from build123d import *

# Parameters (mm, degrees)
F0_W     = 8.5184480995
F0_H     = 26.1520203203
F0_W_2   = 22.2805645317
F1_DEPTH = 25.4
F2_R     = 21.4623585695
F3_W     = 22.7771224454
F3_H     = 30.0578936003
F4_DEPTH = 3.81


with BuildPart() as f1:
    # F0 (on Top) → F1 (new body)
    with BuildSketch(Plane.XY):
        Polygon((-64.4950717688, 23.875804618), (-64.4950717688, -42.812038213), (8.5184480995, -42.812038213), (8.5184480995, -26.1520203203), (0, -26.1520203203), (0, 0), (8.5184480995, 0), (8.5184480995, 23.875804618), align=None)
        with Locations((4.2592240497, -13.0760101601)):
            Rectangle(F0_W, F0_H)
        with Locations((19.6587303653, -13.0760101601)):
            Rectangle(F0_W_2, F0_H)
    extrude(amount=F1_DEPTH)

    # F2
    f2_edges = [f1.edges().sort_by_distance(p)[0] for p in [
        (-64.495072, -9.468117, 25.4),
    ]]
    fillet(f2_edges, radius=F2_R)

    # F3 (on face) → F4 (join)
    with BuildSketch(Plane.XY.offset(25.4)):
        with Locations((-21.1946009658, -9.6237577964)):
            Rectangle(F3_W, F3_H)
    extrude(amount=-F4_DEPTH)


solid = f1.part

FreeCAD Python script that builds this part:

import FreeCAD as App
import Part
import Sketcher
from FreeCAD import Vector
Q = App.Units.Quantity


def edges_at(feature, points):
    """Names of the edges that pass closest to the given points."""
    edges = feature.Shape.Edges
    near = lambda p: min(range(len(edges)), key=lambda i: edges[i].distToShape(Part.Vertex(*p))[0])
    return sorted({f"Edge{near(p) + 1}" for p in points})

doc = App.newDocument("Part")
params = doc.addObject("Spreadsheet::Sheet", "Params")
for row, (alias, value) in enumerate([
    ("pad1_length", "1 in"),
    ("fillet_radius", "21.462359 mm"),
    ("pad2_length", "0.15 in"),
], start=1):
    params.set(f"A{row}", alias)
    params.set(f"B{row}", "=" + value)
    params.setAlias(f"B{row}", alias)

body = doc.addObject("PartDesign::Body", "Body")

sketch1 = body.newObject("Sketcher::SketchObject", "Sketch")
sketch1.AttachmentSupport = (doc.getObject("XY_Plane"), [""])
sketch1.MapMode = "FlatFace"
sketch1.addGeometry(Part.LineSegment(Vector(-64, 24, 0), Vector(-64, -43, 0)), False)
sketch1.addGeometry(Part.LineSegment(Vector(-64, -43, 0), Vector(9, -43, 0)), False)
sketch1.addGeometry(Part.LineSegment(Vector(9, -43, 0), Vector(9, -26, 0)), False)
sketch1.addGeometry(Part.LineSegment(Vector(9, -26, 0), Vector(31, -26, 0)), False)
sketch1.addGeometry(Part.LineSegment(Vector(31, -26, 0), Vector(31, 0, 0)), False)
sketch1.addGeometry(Part.LineSegment(Vector(31, 0, 0), Vector(9, 0, 0)), False)
sketch1.addGeometry(Part.LineSegment(Vector(9, 0, 0), Vector(9, 24, 0)), False)
sketch1.addGeometry(Part.LineSegment(Vector(9, 24, 0), Vector(-64, 24, 0)), False)
sketch1.addConstraint(Sketcher.Constraint("Coincident", 0, 2, 1, 1))
sketch1.addConstraint(Sketcher.Constraint("Coincident", 1, 2, 2, 1))
sketch1.addConstraint(Sketcher.Constraint("Coincident", 2, 2, 3, 1))
sketch1.addConstraint(Sketcher.Constraint("Coincident", 3, 2, 4, 1))
sketch1.addConstraint(Sketcher.Constraint("Coincident", 4, 2, 5, 1))
sketch1.addConstraint(Sketcher.Constraint("Coincident", 5, 2, 6, 1))
sketch1.addConstraint(Sketcher.Constraint("Coincident", 6, 2, 7, 1))
sketch1.addConstraint(Sketcher.Constraint("Coincident", 7, 2, 0, 1))
sketch1.addConstraint(Sketcher.Constraint("Vertical", 0))
sketch1.addConstraint(Sketcher.Constraint("Horizontal", 1))
sketch1.addConstraint(Sketcher.Constraint("Vertical", 2))
sketch1.addConstraint(Sketcher.Constraint("Horizontal", 3))
sketch1.addConstraint(Sketcher.Constraint("Vertical", 4))
sketch1.addConstraint(Sketcher.Constraint("Horizontal", 5))
sketch1.addConstraint(Sketcher.Constraint("Vertical", 6))
sketch1.addConstraint(Sketcher.Constraint("Horizontal", 7))
sketch1.addConstraint(Sketcher.Constraint("PointOnObject", 4, 2, -1))
sketch1.addConstraint(Sketcher.Constraint("Vertical", 2, 2, 5, 2))
sketch1.addConstraint(Sketcher.Constraint("DistanceX", 1, 1, 1, 2, Q("73.01352 mm")))
sketch1.addConstraint(Sketcher.Constraint("DistanceY", 4, 1, 4, 2, Q("26.15202 mm")))
sketch1.addConstraint(Sketcher.Constraint("DistanceX", 3, 1, 3, 2, Q("22.280565 mm")))
sketch1.addConstraint(Sketcher.Constraint("DistanceY", 0, 2, 0, 1, Q("66.687843 mm")))
sketch1.addConstraint(Sketcher.Constraint("DistanceY", 2, 1, 2, 2, Q("16.660018 mm")))
sketch1.addConstraint(Sketcher.Constraint("DistanceX", 0, 2, -1, 1, Q("64.495072 mm")))
pad1 = body.newObject("PartDesign::Pad", "Pad")
pad1.Profile = sketch1
pad1.setExpression("Length", "Params.pad1_length")
doc.recompute()

fillet = body.newObject("PartDesign::Fillet", "Fillet")
fillet.Base = (pad1, edges_at(pad1, [(-64.495, -9.468, 25.4)]))
fillet.setExpression("Radius", "Params.fillet_radius")

sketch2 = body.newObject("Sketcher::SketchObject", "Sketch001")
sketch2.AttachmentSupport = (doc.getObject("XY_Plane"), [""])
sketch2.MapMode = "FlatFace"
sketch2.AttachmentOffset = App.Placement(Vector(0, 0, 1 * 25.4), App.Rotation())
sketch2.addGeometry(Part.LineSegment(Vector(-33, 5, 0), Vector(-33, -25, 0)), False)
sketch2.addGeometry(Part.LineSegment(Vector(-33, -25, 0), Vector(-10, -25, 0)), False)
sketch2.addGeometry(Part.LineSegment(Vector(-10, -25, 0), Vector(-10, 5, 0)), False)
sketch2.addGeometry(Part.LineSegment(Vector(-10, 5, 0), Vector(-33, 5, 0)), False)
sketch2.addConstraint(Sketcher.Constraint("Coincident", 0, 2, 1, 1))
sketch2.addConstraint(Sketcher.Constraint("Coincident", 1, 2, 2, 1))
sketch2.addConstraint(Sketcher.Constraint("Coincident", 2, 2, 3, 1))
sketch2.addConstraint(Sketcher.Constraint("Coincident", 3, 2, 0, 1))
sketch2.addConstraint(Sketcher.Constraint("Vertical", 0))
sketch2.addConstraint(Sketcher.Constraint("Horizontal", 1))
sketch2.addConstraint(Sketcher.Constraint("Vertical", 2))
sketch2.addConstraint(Sketcher.Constraint("Horizontal", 3))
sketch2.addConstraint(Sketcher.Constraint("DistanceX", 1, 1, 1, 2, Q("22.777122 mm")))
sketch2.addConstraint(Sketcher.Constraint("DistanceY", 0, 2, 0, 1, Q("30.057894 mm")))
sketch2.addConstraint(Sketcher.Constraint("DistanceX", 1, 2, -1, 1, Q("9.80604 mm")))
sketch2.addConstraint(Sketcher.Constraint("DistanceY", -1, 1, 2, 2, Q("5.405189 mm")))
pad2 = body.newObject("PartDesign::Pad", "Pad001")
pad2.Profile = sketch2
pad2.setExpression("Length", "Params.pad2_length")
pad2.Reversed = True

doc.recompute()
